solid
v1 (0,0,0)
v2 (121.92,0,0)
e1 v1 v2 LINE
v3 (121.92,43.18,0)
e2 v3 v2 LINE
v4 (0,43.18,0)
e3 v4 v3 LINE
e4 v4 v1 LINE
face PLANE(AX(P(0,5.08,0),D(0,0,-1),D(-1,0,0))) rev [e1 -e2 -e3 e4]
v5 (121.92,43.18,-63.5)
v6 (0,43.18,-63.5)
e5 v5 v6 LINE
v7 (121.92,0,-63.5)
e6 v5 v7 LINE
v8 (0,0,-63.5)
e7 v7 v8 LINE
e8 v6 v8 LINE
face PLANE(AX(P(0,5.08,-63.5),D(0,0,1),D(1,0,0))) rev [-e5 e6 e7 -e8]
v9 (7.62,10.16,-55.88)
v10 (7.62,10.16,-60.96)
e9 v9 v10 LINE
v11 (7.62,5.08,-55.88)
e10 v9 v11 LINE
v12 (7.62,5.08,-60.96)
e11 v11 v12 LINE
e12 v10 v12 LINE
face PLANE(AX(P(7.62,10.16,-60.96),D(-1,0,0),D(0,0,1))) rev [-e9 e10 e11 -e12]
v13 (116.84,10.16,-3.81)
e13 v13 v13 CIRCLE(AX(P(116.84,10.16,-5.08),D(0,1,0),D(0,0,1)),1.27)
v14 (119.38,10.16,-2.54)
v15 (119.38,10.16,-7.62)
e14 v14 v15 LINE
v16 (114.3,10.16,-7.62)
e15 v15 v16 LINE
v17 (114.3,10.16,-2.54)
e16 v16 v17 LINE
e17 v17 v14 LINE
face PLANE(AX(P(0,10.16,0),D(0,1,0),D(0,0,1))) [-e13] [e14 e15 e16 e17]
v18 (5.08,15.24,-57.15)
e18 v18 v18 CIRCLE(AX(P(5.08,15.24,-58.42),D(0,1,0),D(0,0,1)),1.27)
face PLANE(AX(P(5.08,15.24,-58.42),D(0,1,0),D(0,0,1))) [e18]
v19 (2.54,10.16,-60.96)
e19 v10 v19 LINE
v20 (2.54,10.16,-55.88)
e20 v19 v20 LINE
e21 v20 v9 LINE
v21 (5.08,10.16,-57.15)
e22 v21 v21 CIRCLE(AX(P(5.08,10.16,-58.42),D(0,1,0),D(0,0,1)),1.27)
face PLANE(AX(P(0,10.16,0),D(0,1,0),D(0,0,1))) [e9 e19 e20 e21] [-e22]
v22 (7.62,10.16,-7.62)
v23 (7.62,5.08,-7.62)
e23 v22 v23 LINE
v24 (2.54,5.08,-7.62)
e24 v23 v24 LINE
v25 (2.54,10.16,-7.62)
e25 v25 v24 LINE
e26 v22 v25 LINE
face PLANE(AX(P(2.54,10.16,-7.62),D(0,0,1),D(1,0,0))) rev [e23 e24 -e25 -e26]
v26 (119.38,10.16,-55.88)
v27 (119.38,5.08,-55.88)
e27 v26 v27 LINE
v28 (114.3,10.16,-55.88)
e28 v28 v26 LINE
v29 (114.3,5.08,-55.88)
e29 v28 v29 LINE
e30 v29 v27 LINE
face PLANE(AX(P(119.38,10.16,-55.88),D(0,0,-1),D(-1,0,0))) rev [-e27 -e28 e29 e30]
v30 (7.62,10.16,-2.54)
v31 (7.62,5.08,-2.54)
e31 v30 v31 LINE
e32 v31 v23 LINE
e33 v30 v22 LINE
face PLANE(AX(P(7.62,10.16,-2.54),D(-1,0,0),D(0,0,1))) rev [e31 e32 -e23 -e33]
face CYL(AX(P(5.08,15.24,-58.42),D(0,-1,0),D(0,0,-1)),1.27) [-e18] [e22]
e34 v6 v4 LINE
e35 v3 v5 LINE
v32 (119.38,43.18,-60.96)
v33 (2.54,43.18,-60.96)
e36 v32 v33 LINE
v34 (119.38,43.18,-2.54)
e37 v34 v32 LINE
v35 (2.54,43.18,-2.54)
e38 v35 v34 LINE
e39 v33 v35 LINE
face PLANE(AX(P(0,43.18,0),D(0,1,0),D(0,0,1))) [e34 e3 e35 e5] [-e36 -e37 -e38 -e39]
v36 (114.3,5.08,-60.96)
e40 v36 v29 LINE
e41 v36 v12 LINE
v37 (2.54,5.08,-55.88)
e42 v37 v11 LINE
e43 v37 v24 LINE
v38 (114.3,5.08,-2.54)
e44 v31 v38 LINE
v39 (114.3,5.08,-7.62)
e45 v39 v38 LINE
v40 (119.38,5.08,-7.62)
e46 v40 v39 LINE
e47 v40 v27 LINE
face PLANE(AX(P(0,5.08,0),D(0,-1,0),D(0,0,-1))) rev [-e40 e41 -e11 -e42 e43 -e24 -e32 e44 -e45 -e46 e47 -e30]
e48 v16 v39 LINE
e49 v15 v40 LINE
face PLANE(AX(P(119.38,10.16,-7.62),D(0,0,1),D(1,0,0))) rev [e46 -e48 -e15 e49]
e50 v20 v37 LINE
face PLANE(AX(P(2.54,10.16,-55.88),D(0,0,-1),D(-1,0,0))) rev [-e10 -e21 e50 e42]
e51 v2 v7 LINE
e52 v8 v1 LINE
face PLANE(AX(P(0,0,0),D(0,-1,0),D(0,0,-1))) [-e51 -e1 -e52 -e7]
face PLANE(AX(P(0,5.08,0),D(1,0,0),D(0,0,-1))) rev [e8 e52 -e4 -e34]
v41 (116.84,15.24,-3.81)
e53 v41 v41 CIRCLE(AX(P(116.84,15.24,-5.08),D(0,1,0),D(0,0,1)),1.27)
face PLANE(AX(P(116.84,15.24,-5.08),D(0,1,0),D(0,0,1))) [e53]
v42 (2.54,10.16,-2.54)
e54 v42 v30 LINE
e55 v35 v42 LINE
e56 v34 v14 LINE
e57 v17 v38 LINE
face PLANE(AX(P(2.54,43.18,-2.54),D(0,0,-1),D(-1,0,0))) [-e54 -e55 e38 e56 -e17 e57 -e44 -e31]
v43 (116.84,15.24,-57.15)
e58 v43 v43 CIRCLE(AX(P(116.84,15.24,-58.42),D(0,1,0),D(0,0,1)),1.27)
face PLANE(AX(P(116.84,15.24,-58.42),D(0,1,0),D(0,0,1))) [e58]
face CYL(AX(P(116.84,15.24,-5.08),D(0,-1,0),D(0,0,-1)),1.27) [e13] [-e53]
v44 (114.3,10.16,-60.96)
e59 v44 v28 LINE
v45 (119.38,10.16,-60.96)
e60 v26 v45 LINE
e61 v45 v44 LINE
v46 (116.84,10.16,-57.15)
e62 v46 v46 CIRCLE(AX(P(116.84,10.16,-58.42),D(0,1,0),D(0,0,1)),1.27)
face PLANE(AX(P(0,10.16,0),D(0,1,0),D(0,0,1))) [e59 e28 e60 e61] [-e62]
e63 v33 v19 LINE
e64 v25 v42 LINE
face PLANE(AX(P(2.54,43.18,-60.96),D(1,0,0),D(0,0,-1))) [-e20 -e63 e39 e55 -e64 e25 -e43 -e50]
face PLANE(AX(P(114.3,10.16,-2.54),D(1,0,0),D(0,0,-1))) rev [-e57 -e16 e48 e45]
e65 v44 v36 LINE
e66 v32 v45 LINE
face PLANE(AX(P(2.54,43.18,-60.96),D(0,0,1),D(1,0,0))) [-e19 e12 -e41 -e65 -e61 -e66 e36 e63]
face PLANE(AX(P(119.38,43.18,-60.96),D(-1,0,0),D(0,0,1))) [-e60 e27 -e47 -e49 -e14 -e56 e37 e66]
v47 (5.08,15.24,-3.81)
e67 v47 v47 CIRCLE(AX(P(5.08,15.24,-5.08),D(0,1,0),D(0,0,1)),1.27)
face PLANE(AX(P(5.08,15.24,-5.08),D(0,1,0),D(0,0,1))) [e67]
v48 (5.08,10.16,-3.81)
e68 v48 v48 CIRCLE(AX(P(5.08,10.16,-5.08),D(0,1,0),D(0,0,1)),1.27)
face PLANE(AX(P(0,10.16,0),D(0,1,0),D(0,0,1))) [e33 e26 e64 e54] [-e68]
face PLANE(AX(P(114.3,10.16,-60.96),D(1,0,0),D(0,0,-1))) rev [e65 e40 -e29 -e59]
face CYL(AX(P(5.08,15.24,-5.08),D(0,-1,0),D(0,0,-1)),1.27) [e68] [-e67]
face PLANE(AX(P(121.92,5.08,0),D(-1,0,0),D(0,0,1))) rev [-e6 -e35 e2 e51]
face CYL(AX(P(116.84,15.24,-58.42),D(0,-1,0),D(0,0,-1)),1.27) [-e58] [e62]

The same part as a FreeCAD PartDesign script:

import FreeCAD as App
import Part
import Sketcher
Q = App.Units.Quantity

doc = App.newDocument("Part")
body = doc.addObject("PartDesign::Body", "Body")

# Sketch on XZ plane
sketch1 = doc.addObject("Sketcher::SketchObject", "Sketch")
body.addObject(sketch1)
sketch1.AttachmentSupport = (doc.XZ_Plane, [""])
sketch1.MapMode = "FlatFace"
sketch1.addGeometry(Part.LineSegment(App.Vector(0, -64, 0), App.Vector(0, 0, 0)), False)
sketch1.addGeometry(Part.LineSegment(App.Vector(0, 0, 0), App.Vector(122, 0, 0)), False)
sketch1.addGeometry(Part.LineSegment(App.Vector(122, 0, 0), App.Vector(122, -64, 0)), False)
sketch1.addGeometry(Part.LineSegment(App.Vector(122, -64, 0), App.Vector(0, -64, 0)), False)
sketch1.addConstraint(Sketcher.Constraint("Coincident", 0, 2, 1, 1))
sketch1.addConstraint(Sketcher.Constraint("Coincident", 1, 2, 2, 1))
sketch1.addConstraint(Sketcher.Constraint("Coincident", 2, 2, 3, 1))
sketch1.addConstraint(Sketcher.Constraint("Coincident", 3, 2, 0, 1))
sketch1.addConstraint(Sketcher.Constraint("Vertical", 0))
sketch1.addConstraint(Sketcher.Constraint("Horizontal", 1))
sketch1.addConstraint(Sketcher.Constraint("Vertical", 2))
sketch1.addConstraint(Sketcher.Constraint("Horizontal", 3))
sketch1.addConstraint(Sketcher.Constraint("Coincident", 0, 2, -1, 1))
sketch1.addConstraint(Sketcher.Constraint("DistanceX", 1, 1, 1, 2, Q("4.8 in")))
sketch1.addConstraint(Sketcher.Constraint("DistanceY", 0, 1, 0, 2, Q("2.5 in")))
pad1 = doc.addObject("PartDesign::Pad", "Pad")
body.addObject(pad1)
pad1.Profile = sketch1
pad1.Length = Q("0.2 in")
pad1.Reversed = True

# Sketch on XZ plane
sketch2 = doc.addObject("Sketcher::SketchObject", "Sketch001")
body.addObject(sketch2)
sketch2.AttachmentSupport = (doc.XZ_Plane, [""])
sketch2.MapMode = "FlatFace"
sketch2.AttachmentOffset = App.Placement(App.Vector(0, 0, -0.2 * 25.4), App.Rotation())
sketch2.addGeometry(Part.LineSegment(App.Vector(0, -64, 0), App.Vector(0, 0, 0)), False)
sketch2.addGeometry(Part.LineSegment(App.Vector(0, 0, 0), App.Vector(122, 0, 0)), False)
sketch2.addGeometry(Part.LineSegment(App.Vector(122, 0, 0), App.Vector(122, -64, 0)), False)
sketch2.addGeometry(Part.LineSegment(App.Vector(122, -64, 0), App.Vector(0, -64, 0)), False)
sketch2.addGeometry(Part.LineSegment(App.Vector(119, -3, 0), App.Vector(3, -3, 0)), False)
sketch2.addGeometry(Part.LineSegment(App.Vector(3, -3, 0), App.Vector(3, -61, 0)), False)
sketch2.addGeometry(Part.LineSegment(App.Vector(3, -61, 0), App.Vector(119, -61, 0)), False)
sketch2.addGeometry(Part.LineSegment(App.Vector(119, -61, 0), App.Vector(119, -3, 0)), False)
sketch2.addConstraint(Sketcher.Constraint("Coincident", 0, 2, 1, 1))
sketch2.addConstraint(Sketcher.Constraint("Coincident", 1, 2, 2, 1))
sketch2.addConstraint(Sketcher.Constraint("Coincident", 2, 2, 3, 1))
sketch2.addConstraint(Sketcher.Constraint("Coincident", 3, 2, 0, 1))
sketch2.addConstraint(Sketcher.Constraint("Coincident", 4, 2, 5, 1))
sketch2.addConstraint(Sketcher.Constraint("Coincident", 5, 2, 6, 1))
sketch2.addConstraint(Sketcher.Constraint("Coincident", 6, 2, 7, 1))
sketch2.addConstraint(Sketcher.Constraint("Coincident", 7, 2, 4, 1))
sketch2.addConstraint(Sketcher.Constraint("Vertical", 0))
sketch2.addConstraint(Sketcher.Constraint("Horizontal", 1))
sketch2.addConstraint(Sketcher.Constraint("Vertical", 2))
sketch2.addConstraint(Sketcher.Constraint("Horizontal", 3))
sketch2.addConstraint(Sketcher.Constraint("Horizontal", 4))
sketch2.addConstraint(Sketcher.Constraint("Vertical", 5))
sketch2.addConstraint(Sketcher.Constraint("Horizontal", 6))
sketch2.addConstraint(Sketcher.Constraint("Vertical", 7))
sketch2.addConstraint(Sketcher.Constraint("Coincident", 0, 2, -1, 1))
sketch2.addConstraint(Sketcher.Constraint("DistanceX", 1, 1, 1, 2, Q("4.8 in")))
sketch2.addConstraint(Sketcher.Constraint("DistanceX", 4, 2, 4, 1, Q("4.6 in")))
sketch2.addConstraint(Sketcher.Constraint("DistanceY", 0, 1, 0, 2, Q("2.5 in")))
sketch2.addConstraint(Sketcher.Constraint("DistanceY", 5, 2, 5, 1, Q("2.3 in")))
sketch2.addConstraint(Sketcher.Constraint("DistanceX", -1, 1, 4, 2, Q("0.1 in")))
sketch2.addConstraint(Sketcher.Constraint("DistanceY", 4, 2, -1, 1, Q("0.1 in")))
pad2 = doc.addObject("PartDesign::Pad", "Pad001")
body.addObject(pad2)
pad2.Profile = sketch2
pad2.Length = Q("1.5 in")
pad2.Reversed = True

# Sketch on XZ plane
sketch3 = doc.addObject("Sketcher::SketchObject", "Sketch002")
body.addObject(sketch3)
sketch3.AttachmentSupport = (doc.XZ_Plane, [""])
sketch3.MapMode = "FlatFace"
sketch3.AttachmentOffset = App.Placement(App.Vector(0, 0, -0.2 * 25.4), App.Rotation())
sketch3.addGeometry(Part.LineSegment(App.Vector(3, -61, 0), App.Vector(3, -56, 0)), False)
sketch3.addGeometry(Part.LineSegment(App.Vector(3, -56, 0), App.Vector(8, -56, 0)), False)
sketch3.addGeometry(Part.LineSegment(App.Vector(8, -56, 0), App.Vector(8, -61, 0)), False)
sketch3.addGeometry(Part.LineSegment(App.Vector(8, -61, 0), App.Vector(3, -61, 0)), False)
sketch3.addGeometry(Part.LineSegment(App.Vector(114, -61, 0), App.Vector(114, -56, 0)), False)
sketch3.addGeometry(Part.LineSegment(App.Vector(114, -56, 0), App.Vector(119, -56, 0)), False)
sketch3.addGeometry(Part.LineSegment(App.Vector(119, -56, 0), App.Vector(119, -61, 0)), False)
sketch3.addGeometry(Part.LineSegment(App.Vector(119, -61, 0), App.Vector(114, -61, 0)), False)
sketch3.addGeometry(Part.LineSegment(App.Vector(114, -8, 0), App.Vector(114, -3, 0)), False)
sketch3.addGeometry(Part.LineSegment(App.Vector(114, -3, 0), App.Vector(119, -3, 0)), False)
sketch3.addGeometry(Part.LineSegment(App.Vector(119, -3, 0), App.Vector(119, -8, 0)), False)
sketch3.addGeometry(Part.LineSegment(App.Vector(119, -8, 0), App.Vector(114, -8, 0)), False)
sketch3.addGeometry(Part.LineSegment(App.Vector(3, -8, 0), App.Vector(3, -3, 0)), False)
sketch3.addGeometry(Part.LineSegment(App.Vector(3, -3, 0), App.Vector(8, -3, 0)), False)
sketch3.addGeometry(Part.LineSegment(App.Vector(8, -3, 0), App.Vector(8, -8, 0)), False)
sketch3.addGeometry(Part.LineSegment(App.Vector(8, -8, 0), App.Vector(3, -8, 0)), False)
sketch3.addConstraint(Sketcher.Constraint("Coincident", 0, 2, 1, 1))
sketch3.addConstraint(Sketcher.Constraint("Coincident", 1, 2, 2, 1))
sketch3.addConstraint(Sketcher.Constraint("Coincident", 2, 2, 3, 1))
sketch3.addConstraint(Sketcher.Constraint("Coincident", 3, 2, 0, 1))
sketch3.addConstraint(Sketcher.Constraint("Coincident", 4, 2, 5, 1))
sketch3.addConstraint(Sketcher.Constraint("Coincident", 5, 2, 6, 1))
sketch3.addConstraint(Sketcher.Constraint("Coincident", 6, 2, 7, 1))
sketch3.addConstraint(Sketcher.Constraint("Coincident", 7, 2, 4, 1))
sketch3.addConstraint(Sketcher.Constraint("Coincident", 8, 2, 9, 1))
sketch3.addConstraint(Sketcher.Constraint("Coincident", 9, 2, 10, 1))
sketch3.addConstraint(Sketcher.Constraint("Coincident", 10, 2, 11, 1))
sketch3.addConstraint(Sketcher.Constraint("Coincident", 11, 2, 8, 1))
sketch3.addConstraint(Sketcher.Constraint("Coincident", 12, 2, 13, 1))
sketch3.addConstraint(Sketcher.Constraint("Coincident", 13, 2, 14, 1))
sketch3.addConstraint(Sketcher.Constraint("Coincident", 14, 2, 15, 1))
sketch3.addConstraint(Sketcher.Constraint("Coincident", 15, 2, 12, 1))
sketch3.addConstraint(Sketcher.Constraint("Vertical", 0))
sketch3.addConstraint(Sketcher.Constraint("Horizontal", 1))
sketch3.addConstraint(Sketcher.Constraint("Vertical", 2))
sketch3.addConstraint(Sketcher.Constraint("Horizontal", 3))
sketch3.addConstraint(Sketcher.Constraint("Vertical", 4))
sketch3.addConstraint(Sketcher.Constraint("Horizontal", 5))
sketch3.addConstraint(Sketcher.Constraint("Vertical", 6))
sketch3.addConstraint(Sketcher.Constraint("Horizontal", 7))
sketch3.addConstraint(Sketcher.Constraint("Vertical", 8))
sketch3.addConstraint(Sketcher.Constraint("Horizontal", 9))
sketch3.addConstraint(Sketcher.Constraint("Vertical", 10))
sketch3.addConstraint(Sketcher.Constraint("Horizontal", 11))
sketch3.addConstraint(Sketcher.Constraint("Vertical", 12))
sketch3.addConstraint(Sketcher.Constraint("Horizontal", 13))
sketch3.addConstraint(Sketcher.Constraint("Vertical", 14))
sketch3.addConstraint(Sketcher.Constraint("Horizontal", 15))
sketch3.addConstraint(Sketcher.Constraint("Horizontal", 1, 2, 4, 2))
sketch3.addConstraint(Sketcher.Constraint("Horizontal", 3, 2, 6, 2))
sketch3.addConstraint(Sketcher.Constraint("Horizontal", 9, 2, 12, 2))
sketch3.addConstraint(Sketcher.Constraint("Horizontal", 11, 2, 14, 2))
sketch3.addConstraint(Sketcher.Constraint("Vertical", 7, 2, 8, 2))
sketch3.addConstraint(Sketcher.Constraint("Vertical", 6, 2, 9, 2))
sketch3.addConstraint(Sketcher.Constraint("Vertical", 3, 2, 12, 2))
sketch3.addConstraint(Sketcher.Constraint("Vertical", 2, 2, 13, 2))
sketch3.addConstraint(Sketcher.Constraint("Equal", 3, 5))
sketch3.addConstraint(Sketcher.Constraint("Equal", 15, 0))
sketch3.addConstraint(Sketcher.Constraint("Equal", 6, 8))
sketch3.addConstraint(Sketcher.Constraint("DistanceX", 1, 1, 1, 2, Q("0.2 in")))
sketch3.addConstraint(Sketcher.Constraint("DistanceX", -1, 1, 0, 2, Q("0.1 in")))
sketch3.addConstraint(Sketcher.Constraint("DistanceY", 0, 2, -1, 1, Q("2.2 in")))
sketch3.addConstraint(Sketcher.Constraint("DistanceX", -1, 1, 4, 2, Q("4.5 in")))
sketch3.addConstraint(Sketcher.Constraint("DistanceY", 8, 2, -1, 1, Q("0.1 in")))
pad3 = doc.addObject("PartDesign::Pad", "Pad002")
body.addObject(pad3)
pad3.Profile = sketch3
pad3.Length = Q("0.2 in")
pad3.Reversed = True

# Sketch on XZ plane
sketch4 = doc.addObject("Sketcher::SketchObject", "Sketch003")
body.addObject(sketch4)
sketch4.AttachmentSupport = (doc.XZ_Plane, [""])
sketch4.MapMode = "FlatFace"
sketch4.AttachmentOffset = App.Placement(App.Vector(0, 0, -0.4 * 25.4), App.Rotation())
sketch4.addGeometry(Part.Circle(App.Vector(5.1, -58.4, 0), App.Vector(0, 0, 1), 1.3), False)
sketch4.addGeometry(Part.Circle(App.Vector(116.8, -58.4, 0), App.Vector(0, 0, 1), 1.3), False)
sketch4.addGeometry(Part.Circle(App.Vector(116.8, -5.1, 0), App.Vector(0, 0, 1), 1.3), False)
sketch4.addGeometry(Part.Circle(App.Vector(5.1, -5.1, 0), App.Vector(0, 0, 1), 1.3), False)
sketch4.addConstraint(Sketcher.Constraint("Equal", 0, 1))
sketch4.addConstraint(Sketcher.Constraint("Equal", 1, 2))
sketch4.addConstraint(Sketcher.Constraint("Equal", 2, 3))
sketch4.addConstraint(Sketcher.Constraint("Horizontal", 0, 3, 1, 3))
sketch4.addConstraint(Sketcher.Constraint("Horizontal", 2, 3, 3, 3))
sketch4.addConstraint(Sketcher.Constraint("Vertical", 1, 3, 2, 3))
sketch4.addConstraint(Sketcher.Constraint("Vertical", 0, 3, 3, 3))
sketch4.addConstraint(Sketcher.Constraint("Diameter", 0, Q("0.1 in")))
sketch4.addConstraint(Sketcher.Constraint("DistanceX", -1, 1, 0, 3, Q("0.2 in")))
sketch4.addConstraint(Sketcher.Constraint("DistanceY", 0, 3, -1, 1, Q("2.3 in")))
sketch4.addConstraint(Sketcher.Constraint("DistanceX", -1, 1, 1, 3, Q("4.6 in")))
sketch4.addConstraint(Sketcher.Constraint("DistanceY", 2, 3, -1, 1, Q("0.2 in")))
pad4 = doc.addObject("PartDesign::Pad", "Pad003")
body.addObject(pad4)
pad4.Profile = sketch4
pad4.Length = Q("0.2 in")
pad4.Reversed = True

doc.recompute()
